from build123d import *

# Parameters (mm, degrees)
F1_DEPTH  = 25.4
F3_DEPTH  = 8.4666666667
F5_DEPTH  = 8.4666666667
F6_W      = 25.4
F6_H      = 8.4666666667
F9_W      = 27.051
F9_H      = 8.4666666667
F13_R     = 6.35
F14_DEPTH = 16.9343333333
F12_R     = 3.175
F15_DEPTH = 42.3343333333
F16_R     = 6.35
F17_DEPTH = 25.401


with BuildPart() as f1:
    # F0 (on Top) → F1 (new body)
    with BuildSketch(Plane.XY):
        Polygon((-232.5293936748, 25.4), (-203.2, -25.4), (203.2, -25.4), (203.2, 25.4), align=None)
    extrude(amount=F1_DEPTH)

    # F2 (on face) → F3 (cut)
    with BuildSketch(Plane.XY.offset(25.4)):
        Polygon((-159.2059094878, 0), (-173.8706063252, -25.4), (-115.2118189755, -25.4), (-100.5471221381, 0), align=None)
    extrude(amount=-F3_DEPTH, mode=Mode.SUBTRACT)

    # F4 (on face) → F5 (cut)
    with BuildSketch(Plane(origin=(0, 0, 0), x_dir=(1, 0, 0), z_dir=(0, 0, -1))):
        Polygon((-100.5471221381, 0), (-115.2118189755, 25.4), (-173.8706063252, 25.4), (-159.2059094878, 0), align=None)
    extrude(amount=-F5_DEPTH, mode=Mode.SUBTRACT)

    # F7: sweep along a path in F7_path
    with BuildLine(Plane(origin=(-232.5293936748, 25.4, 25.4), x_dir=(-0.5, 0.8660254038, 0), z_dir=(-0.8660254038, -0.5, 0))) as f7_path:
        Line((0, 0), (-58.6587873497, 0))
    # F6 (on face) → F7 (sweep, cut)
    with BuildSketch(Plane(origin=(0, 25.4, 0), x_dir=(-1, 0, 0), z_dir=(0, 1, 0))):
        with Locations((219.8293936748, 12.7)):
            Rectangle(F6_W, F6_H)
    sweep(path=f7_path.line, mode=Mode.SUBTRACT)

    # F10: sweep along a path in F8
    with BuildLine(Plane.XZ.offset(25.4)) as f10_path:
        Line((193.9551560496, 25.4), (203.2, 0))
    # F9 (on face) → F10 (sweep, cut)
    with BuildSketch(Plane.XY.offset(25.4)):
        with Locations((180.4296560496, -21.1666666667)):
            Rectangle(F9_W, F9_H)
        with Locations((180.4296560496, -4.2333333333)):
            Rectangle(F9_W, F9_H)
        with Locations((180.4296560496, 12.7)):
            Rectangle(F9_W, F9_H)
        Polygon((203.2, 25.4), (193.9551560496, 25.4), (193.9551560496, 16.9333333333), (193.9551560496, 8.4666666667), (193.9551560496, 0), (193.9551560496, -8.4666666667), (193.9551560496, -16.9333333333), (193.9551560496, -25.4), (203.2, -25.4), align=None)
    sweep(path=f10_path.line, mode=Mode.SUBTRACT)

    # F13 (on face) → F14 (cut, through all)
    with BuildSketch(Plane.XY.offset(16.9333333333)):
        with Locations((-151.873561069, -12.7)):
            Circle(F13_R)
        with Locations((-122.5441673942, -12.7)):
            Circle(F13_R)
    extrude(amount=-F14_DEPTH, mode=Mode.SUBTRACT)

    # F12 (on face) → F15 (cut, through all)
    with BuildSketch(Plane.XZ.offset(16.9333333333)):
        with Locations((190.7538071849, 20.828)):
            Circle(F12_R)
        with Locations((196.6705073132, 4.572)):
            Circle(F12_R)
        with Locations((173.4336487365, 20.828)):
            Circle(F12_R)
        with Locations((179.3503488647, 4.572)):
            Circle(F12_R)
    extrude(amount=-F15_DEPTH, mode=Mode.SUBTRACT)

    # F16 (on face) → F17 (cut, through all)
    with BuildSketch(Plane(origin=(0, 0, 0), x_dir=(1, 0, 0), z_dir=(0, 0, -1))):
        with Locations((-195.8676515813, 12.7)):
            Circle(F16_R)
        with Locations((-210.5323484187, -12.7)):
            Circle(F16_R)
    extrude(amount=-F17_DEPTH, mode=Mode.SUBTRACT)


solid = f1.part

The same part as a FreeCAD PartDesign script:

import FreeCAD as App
import Part
import Sketcher

V = App.Vector
Q = App.Units.Quantity


def add_polygon(sketch, points):
    """Adds a closed chain of lines whose ends are joined by coincident constraints."""
    first, n = sketch.GeometryCount, len(points)
    for a, b in zip(points, points[1:] + points[:1]):
        sketch.addGeometry(Part.LineSegment(App.Vector(*a, 0), App.Vector(*b, 0)), False)
    for i in range(n):
        sketch.addConstraint(Sketcher.Constraint("Coincident", first + i, 2, first + (i + 1) % n, 1))

doc = App.newDocument("Part")
body = doc.addObject("PartDesign::Body", "Body")

sketch1 = body.newObject("Sketcher::SketchObject", "Sketch")
sketch1.AttachmentSupport = (doc.getObject("XY_Plane"), [""])
sketch1.MapMode = "FlatFace"
add_polygon(sketch1, [(-233, 25), (-203, -25), (203, -25), (203, 25)])
sketch1.addConstraint(Sketcher.Constraint("Horizontal", 1))
sketch1.addConstraint(Sketcher.Constraint("Vertical", 2))
sketch1.addConstraint(Sketcher.Constraint("Horizontal", 3))
sketch1.addConstraint(Sketcher.Constraint("Symmetric", 0, 2, 2, 2, -1, 1))
sketch1.addConstraint(Sketcher.Constraint("DistanceX", 1, 1, 1, 2, Q("16 in")))
sketch1.addConstraint(Sketcher.Constraint("DistanceY", 2, 1, 2, 2, Q("2 in")))
sketch1.addConstraint(Sketcher.Constraint("Angle", 0, Q("-60 deg")))
pad1 = body.newObject("PartDesign::Pad", "Pad")
pad1.Profile = sketch1
pad1.Length = Q("1 in")

sketch2 = body.newObject("Sketcher::SketchObject", "Sketch001")
sketch2.AttachmentSupport = (doc.getObject("XY_Plane"), [""])
sketch2.MapMode = "FlatFace"
sketch2.AttachmentOffset = App.Placement(V(0, 0, 1 * 25.4), App.Rotation())
add_polygon(sketch2, [(-159, 0), (-174, -25), (-115, -25), (-101, 0)])
sketch2.addConstraint(Sketcher.Constraint("Horizontal", 1))
sketch2.addConstraint(Sketcher.Constraint("Horizontal", 3))
sketch2.addConstraint(Sketcher.Constraint("PointOnObject", 2, 2, -1))
sketch2.addConstraint(Sketcher.Constraint("Parallel", 0, 2))
sketch2.addConstraint(Sketcher.Constraint("DistanceY", 0, 2, -1, 1, Q("1 in")))
sketch2.addConstraint(Sketcher.Constraint("Angle", 0, Q("-120 deg")))
sketch2.addConstraint(Sketcher.Constraint("DistanceX", 1, 1, 1, 2, 58.658787))
sketch2.addConstraint(Sketcher.Constraint("DistanceX", 1, 2, -1, 1, 115.211819))
pocket1 = body.newObject("PartDesign::Pocket", "Pocket")
pocket1.Profile = sketch2
pocket1.Length = 8.466667

sketch3 = body.newObject("Sketcher::SketchObject", "Sketch002")
sketch3.AttachmentSupport = (doc.getObject("XY_Plane"), [""])
sketch3.MapMode = "FlatFace"
add_polygon(sketch3, [(-101, 0), (-115, -25), (-174, -25), (-159, 0)])
sketch3.addConstraint(Sketcher.Constraint("Horizontal", 1))
sketch3.addConstraint(Sketcher.Constraint("Horizontal", 3))
sketch3.addConstraint(Sketcher.Constraint("PointOnObject", 2, 2, -1))
sketch3.addConstraint(Sketcher.Constraint("Parallel", 0, 2))
sketch3.addConstraint(Sketcher.Constraint("DistanceY", 0, 2, -1, 1, Q("1 in")))
sketch3.addConstraint(Sketcher.Constraint("Angle", 0, Q("-120 deg")))
sketch3.addConstraint(Sketcher.Constraint("DistanceX", 1, 2, 1, 1, 58.658787))
sketch3.addConstraint(Sketcher.Constraint("DistanceX", 0, 2, -1, 1, 115.211819))
pocket2 = body.newObject("PartDesign::Pocket", "Pocket001")
pocket2.Profile = sketch3
pocket2.Length = 8.466667
pocket2.Reversed = True

sketch4 = body.newObject("Sketcher::SketchObject", "Sketch003")
sketch4.AttachmentSupport = (doc.getObject("XZ_Plane"), [""])
sketch4.MapMode = "FlatFace"
sketch4.AttachmentOffset = App.Placement(V(0, 0, -1 * 25.4), App.Rotation())
add_polygon(sketch4, [(-207, 17), (-207, 8), (-233, 8), (-233, 17)])
sketch4.addConstraint(Sketcher.Constraint("Vertical", 0))
sketch4.addConstraint(Sketcher.Constraint("Horizontal", 1))
sketch4.addConstraint(Sketcher.Constraint("Vertical", 2))
sketch4.addConstraint(Sketcher.Constraint("Horizontal", 3))
sketch4.addConstraint(Sketcher.Constraint("DistanceX", 1, 2, 1, 1, Q("1 in")))
sketch4.addConstraint(Sketcher.Constraint("DistanceY", 0, 2, 0, 1, 8.466667))
sketch4.addConstraint(Sketcher.Constraint("DistanceX", 0, 2, -1, 1, 207.129394))
sketch4.addConstraint(Sketcher.Constraint("DistanceY", -1, 1, 0, 2, 8.466667))

sketch5 = body.newObject("Sketcher::SketchObject", "Sketch004")
sketch5.Placement = App.Placement(V(-163.398523, -94.338181, 0), App.Rotation(V(0.5, -0.866025404, 0), V(0, 0, 1), V(-0.866025404, -0.5, 0), "ZXY"))
sketch5.addGeometry(Part.LineSegment(V(-138, 25, 0), V(-80, 25, 0)), False)
sketch5.addConstraint(Sketcher.Constraint("Horizontal", 0))
sketch5.addConstraint(Sketcher.Constraint("DistanceY", -1, 1, 0, 1, Q("1 in")))
sketch5.addConstraint(Sketcher.Constraint("DistanceX", 0, 1, 0, 2, 58.658787))
sketch5.addConstraint(Sketcher.Constraint("DistanceX", 0, 1, -1, 1, 138.261742))
doc.recompute()

subtractivepipe = body.newObject("PartDesign::SubtractivePipe", "SubtractivePipe")
subtractivepipe.Profile = sketch4
subtractivepipe.Spine = (sketch5, ["Edge1"])

sketch6 = body.newObject("Sketcher::SketchObject", "Sketch005")
sketch6.AttachmentSupport = (doc.getObject("XY_Plane"), [""])
sketch6.MapMode = "FlatFace"
sketch6.AttachmentOffset = App.Placement(V(0, 0, 1 * 25.4), App.Rotation())
add_polygon(sketch6, [(167, -17), (167, -25), (194, -25), (203, -25), (203, 25), (194, 25), (194, 17), (167, 17), (167, 8), (194, 8), (194, 0), (167, 0), (167, -8), (194, -8), (194, -17)])
sketch6.addConstraint(Sketcher.Constraint("Vertical", 0))
sketch6.addConstraint(Sketcher.Constraint("Horizontal", 1))
sketch6.addConstraint(Sketcher.Constraint("Horizontal", 2))
sketch6.addConstraint(Sketcher.Constraint("Vertical", 3))
sketch6.addConstraint(Sketcher.Constraint("Horizontal", 4))
sketch6.addConstraint(Sketcher.Constraint("Vertical", 5))
sketch6.addConstraint(Sketcher.Constraint("Horizontal", 6))
sketch6.addConstraint(Sketcher.Constraint("Vertical", 7))
sketch6.addConstraint(Sketcher.Constraint("Horizontal", 8))
sketch6.addConstraint(Sketcher.Constraint("Vertical", 9))
sketch6.addConstraint(Sketcher.Constraint("Horizontal", 10))
sketch6.addConstraint(Sketcher.Constraint("Vertical", 11))
sketch6.addConstraint(Sketcher.Constraint("Horizontal", 12))
sketch6.addConstraint(Sketcher.Constraint("Vertical", 13))
sketch6.addConstraint(Sketcher.Constraint("Horizontal", 14))
sketch6.addConstraint(Sketcher.Constraint("Symmetric", 1, 2, 4, 2, -1))
sketch6.addConstraint(Sketcher.Constraint("Symmetric", 7, 2, 11, 2, -1))
sketch6.addConstraint(Sketcher.Constraint("Symmetric", 5, 2, 13, 2, -1))
sketch6.addConstraint(Sketcher.Constraint("PointOnObject", 9, 2, -1))
sketch6.addConstraint(Sketcher.Constraint("Vertical", 0, 2, 6, 2))
sketch6.addConstraint(Sketcher.Constraint("Vertical", 5, 2, 8, 2))
sketch6.addConstraint(Sketcher.Constraint("Equal", 5, 7))
sketch6.addConstraint(Sketcher.Constraint("Equal", 7, 9))
sketch6.addConstraint(Sketcher.Constraint("DistanceY", 3, 1, 3, 2, Q("2 in")))
sketch6.addConstraint(Sketcher.Constraint("DistanceX", -1, 1, 2, 2, Q("8 in")))
sketch6.addConstraint(Sketcher.Constraint("DistanceX", 1, 1, 1, 2, Q("1.065 in")))
sketch6.addConstraint(Sketcher.Constraint("DistanceX", 2, 1, 2, 2, 9.244844))

sketch7 = body.newObject("Sketcher::SketchObject", "Sketch006")
sketch7.Placement = App.Placement(V(179.430115, 0, 65.307221), App.Rotation(V(0.342020143, 0, -0.939692621), V(0, 1, 0), V(0.939692621, 0, 0.342020143), "ZXY"))
sketch7.addGeometry(Part.LineSegment(V(42, -25, 0), V(69, -25, 0)), False)
sketch7.addConstraint(Sketcher.Constraint("Horizontal", 0))
sketch7.addConstraint(Sketcher.Constraint("DistanceY", 0, 1, -1, 1, Q("1 in")))
sketch7.addConstraint(Sketcher.Constraint("DistanceX", 0, 1, 0, 2, 27.030115))
sketch7.addConstraint(Sketcher.Constraint("DistanceX", -1, 1, 0, 1, 42.468378))
doc.recompute()

subtractivepipe2 = body.newObject("PartDesign::SubtractivePipe", "SubtractivePipe001")
subtractivepipe2.Profile = sketch6
subtractivepipe2.Spine = (sketch7, ["Edge1"])

sketch8 = body.newObject("Sketcher::SketchObject", "Sketch007")
sketch8.AttachmentSupport = (doc.getObject("XY_Plane"), [""])
sketch8.MapMode = "FlatFace"
sketch8.AttachmentOffset = App.Placement(V(0, 0, 16.933333), App.Rotation())
sketch8.addGeometry(Part.Circle(V(-152, -13, 0), V(0, 0, 1), 6), False)
sketch8.addGeometry(Part.Circle(V(-123, -13, 0), V(0, 0, 1), 6), False)
sketch8.addConstraint(Sketcher.Constraint("Equal", 0, 1))
sketch8.addConstraint(Sketcher.Constraint("Horizontal", 0, 3, 1, 3))
sketch8.addConstraint(Sketcher.Constraint("Diameter", 0, Q("0.5 in")))
sketch8.addConstraint(Sketcher.Constraint("DistanceY", 0, 3, -1, 1, Q("0.5 in")))
sketch8.addConstraint(Sketcher.Constraint("DistanceX", 0, 3, -1, 1, 151.873561))
sketch8.addConstraint(Sketcher.Constraint("DistanceX", 1, 3, -1, 1, 122.544167))
pocket3 = body.newObject("PartDesign::Pocket", "Pocket002")
pocket3.Profile = sketch8
pocket3.Type = "ThroughAll"

sketch9 = body.newObject("Sketcher::SketchObject", "Sketch008")
sketch9.AttachmentSupport = (doc.getObject("XZ_Plane"), [""])
sketch9.MapMode = "FlatFace"
sketch9.AttachmentOffset = App.Placement(V(0, 0, 16.933333), App.Rotation())
sketch9.addGeometry(Part.Circle(V(190.8, 20.8, 0), V(0, 0, 1), 3.2), False)
sketch9.addGeometry(Part.Circle(V(196.7, 4.6, 0), V(0, 0, 1), 3.2), False)
sketch9.addGeometry(Part.Circle(V(173.4, 20.8, 0), V(0, 0, 1), 3.2), False)
sketch9.addGeometry(Part.Circle(V(179.4, 4.6, 0), V(0, 0, 1), 3.2), False)
sketch9.addConstraint(Sketcher.Constraint("Equal", 0, 1))
sketch9.addConstraint(Sketcher.Constraint("Equal", 1, 2))
sketch9.addConstraint(Sketcher.Constraint("Equal", 2, 3))
sketch9.addConstraint(Sketcher.Constraint("Horizontal", 0, 3, 2, 3))
sketch9.addConstraint(Sketcher.Constraint("Horizontal", 1, 3, 3, 3))
sketch9.addConstraint(Sketcher.Constraint("Diameter", 0, Q("0.25 in")))
sketch9.addConstraint(Sketcher.Constraint("DistanceY", -1, 1, 0, 3, Q("0.82 in")))
sketch9.addConstraint(Sketcher.Constraint("DistanceY", -1, 1, 1, 3, Q("0.18 in")))
sketch9.addConstraint(Sketcher.Constraint("DistanceX", 0, 3, 1, 3, 5.9167))
sketch9.addConstraint(Sketcher.Constraint("DistanceX", 2, 3, 3, 3, 5.9167))
sketch9.addConstraint(Sketcher.Constraint("DistanceX", -1, 1, 2, 3, 173.433649))
sketch9.addConstraint(Sketcher.Constraint("DistanceX", 2, 3, 0, 3, 17.320158))
pocket4 = body.newObject("PartDesign::Pocket", "Pocket003")
pocket4.Profile = sketch9
pocket4.Type = "ThroughAll"

sketch10 = body.newObject("Sketcher::SketchObject", "Sketch009")
sketch10.AttachmentSupport = (doc.getObject("XY_Plane"), [""])
sketch10.MapMode = "FlatFace"
sketch10.addGeometry(Part.Circle(V(-196, -13, 0), V(0, 0, 1), 6), False)
sketch10.addGeometry(Part.Circle(V(-211, 13, 0), V(0, 0, 1), 6), False)
sketch10.addConstraint(Sketcher.Constraint("Equal", 0, 1))
sketch10.addConstraint(Sketcher.Constraint("Diameter", 0, Q("0.5 in")))
sketch10.addConstraint(Sketcher.Constraint("DistanceY", 0, 3, 1, 3, Q("1 in")))
sketch10.addConstraint(Sketcher.Constraint("DistanceY", 0, 3, -1, 1, Q("0.5 in")))
sketch10.addConstraint(Sketcher.Constraint("DistanceX", 0, 3, -1, 1, 195.867652))
sketch10.addConstraint(Sketcher.Constraint("DistanceX", 1, 3, -1, 1, 210.532348))
pocket5 = body.newObject("PartDesign::Pocket", "Pocket004")
pocket5.Profile = sketch10
pocket5.Type = "ThroughAll"
pocket5.Reversed = True

doc.recompute()
